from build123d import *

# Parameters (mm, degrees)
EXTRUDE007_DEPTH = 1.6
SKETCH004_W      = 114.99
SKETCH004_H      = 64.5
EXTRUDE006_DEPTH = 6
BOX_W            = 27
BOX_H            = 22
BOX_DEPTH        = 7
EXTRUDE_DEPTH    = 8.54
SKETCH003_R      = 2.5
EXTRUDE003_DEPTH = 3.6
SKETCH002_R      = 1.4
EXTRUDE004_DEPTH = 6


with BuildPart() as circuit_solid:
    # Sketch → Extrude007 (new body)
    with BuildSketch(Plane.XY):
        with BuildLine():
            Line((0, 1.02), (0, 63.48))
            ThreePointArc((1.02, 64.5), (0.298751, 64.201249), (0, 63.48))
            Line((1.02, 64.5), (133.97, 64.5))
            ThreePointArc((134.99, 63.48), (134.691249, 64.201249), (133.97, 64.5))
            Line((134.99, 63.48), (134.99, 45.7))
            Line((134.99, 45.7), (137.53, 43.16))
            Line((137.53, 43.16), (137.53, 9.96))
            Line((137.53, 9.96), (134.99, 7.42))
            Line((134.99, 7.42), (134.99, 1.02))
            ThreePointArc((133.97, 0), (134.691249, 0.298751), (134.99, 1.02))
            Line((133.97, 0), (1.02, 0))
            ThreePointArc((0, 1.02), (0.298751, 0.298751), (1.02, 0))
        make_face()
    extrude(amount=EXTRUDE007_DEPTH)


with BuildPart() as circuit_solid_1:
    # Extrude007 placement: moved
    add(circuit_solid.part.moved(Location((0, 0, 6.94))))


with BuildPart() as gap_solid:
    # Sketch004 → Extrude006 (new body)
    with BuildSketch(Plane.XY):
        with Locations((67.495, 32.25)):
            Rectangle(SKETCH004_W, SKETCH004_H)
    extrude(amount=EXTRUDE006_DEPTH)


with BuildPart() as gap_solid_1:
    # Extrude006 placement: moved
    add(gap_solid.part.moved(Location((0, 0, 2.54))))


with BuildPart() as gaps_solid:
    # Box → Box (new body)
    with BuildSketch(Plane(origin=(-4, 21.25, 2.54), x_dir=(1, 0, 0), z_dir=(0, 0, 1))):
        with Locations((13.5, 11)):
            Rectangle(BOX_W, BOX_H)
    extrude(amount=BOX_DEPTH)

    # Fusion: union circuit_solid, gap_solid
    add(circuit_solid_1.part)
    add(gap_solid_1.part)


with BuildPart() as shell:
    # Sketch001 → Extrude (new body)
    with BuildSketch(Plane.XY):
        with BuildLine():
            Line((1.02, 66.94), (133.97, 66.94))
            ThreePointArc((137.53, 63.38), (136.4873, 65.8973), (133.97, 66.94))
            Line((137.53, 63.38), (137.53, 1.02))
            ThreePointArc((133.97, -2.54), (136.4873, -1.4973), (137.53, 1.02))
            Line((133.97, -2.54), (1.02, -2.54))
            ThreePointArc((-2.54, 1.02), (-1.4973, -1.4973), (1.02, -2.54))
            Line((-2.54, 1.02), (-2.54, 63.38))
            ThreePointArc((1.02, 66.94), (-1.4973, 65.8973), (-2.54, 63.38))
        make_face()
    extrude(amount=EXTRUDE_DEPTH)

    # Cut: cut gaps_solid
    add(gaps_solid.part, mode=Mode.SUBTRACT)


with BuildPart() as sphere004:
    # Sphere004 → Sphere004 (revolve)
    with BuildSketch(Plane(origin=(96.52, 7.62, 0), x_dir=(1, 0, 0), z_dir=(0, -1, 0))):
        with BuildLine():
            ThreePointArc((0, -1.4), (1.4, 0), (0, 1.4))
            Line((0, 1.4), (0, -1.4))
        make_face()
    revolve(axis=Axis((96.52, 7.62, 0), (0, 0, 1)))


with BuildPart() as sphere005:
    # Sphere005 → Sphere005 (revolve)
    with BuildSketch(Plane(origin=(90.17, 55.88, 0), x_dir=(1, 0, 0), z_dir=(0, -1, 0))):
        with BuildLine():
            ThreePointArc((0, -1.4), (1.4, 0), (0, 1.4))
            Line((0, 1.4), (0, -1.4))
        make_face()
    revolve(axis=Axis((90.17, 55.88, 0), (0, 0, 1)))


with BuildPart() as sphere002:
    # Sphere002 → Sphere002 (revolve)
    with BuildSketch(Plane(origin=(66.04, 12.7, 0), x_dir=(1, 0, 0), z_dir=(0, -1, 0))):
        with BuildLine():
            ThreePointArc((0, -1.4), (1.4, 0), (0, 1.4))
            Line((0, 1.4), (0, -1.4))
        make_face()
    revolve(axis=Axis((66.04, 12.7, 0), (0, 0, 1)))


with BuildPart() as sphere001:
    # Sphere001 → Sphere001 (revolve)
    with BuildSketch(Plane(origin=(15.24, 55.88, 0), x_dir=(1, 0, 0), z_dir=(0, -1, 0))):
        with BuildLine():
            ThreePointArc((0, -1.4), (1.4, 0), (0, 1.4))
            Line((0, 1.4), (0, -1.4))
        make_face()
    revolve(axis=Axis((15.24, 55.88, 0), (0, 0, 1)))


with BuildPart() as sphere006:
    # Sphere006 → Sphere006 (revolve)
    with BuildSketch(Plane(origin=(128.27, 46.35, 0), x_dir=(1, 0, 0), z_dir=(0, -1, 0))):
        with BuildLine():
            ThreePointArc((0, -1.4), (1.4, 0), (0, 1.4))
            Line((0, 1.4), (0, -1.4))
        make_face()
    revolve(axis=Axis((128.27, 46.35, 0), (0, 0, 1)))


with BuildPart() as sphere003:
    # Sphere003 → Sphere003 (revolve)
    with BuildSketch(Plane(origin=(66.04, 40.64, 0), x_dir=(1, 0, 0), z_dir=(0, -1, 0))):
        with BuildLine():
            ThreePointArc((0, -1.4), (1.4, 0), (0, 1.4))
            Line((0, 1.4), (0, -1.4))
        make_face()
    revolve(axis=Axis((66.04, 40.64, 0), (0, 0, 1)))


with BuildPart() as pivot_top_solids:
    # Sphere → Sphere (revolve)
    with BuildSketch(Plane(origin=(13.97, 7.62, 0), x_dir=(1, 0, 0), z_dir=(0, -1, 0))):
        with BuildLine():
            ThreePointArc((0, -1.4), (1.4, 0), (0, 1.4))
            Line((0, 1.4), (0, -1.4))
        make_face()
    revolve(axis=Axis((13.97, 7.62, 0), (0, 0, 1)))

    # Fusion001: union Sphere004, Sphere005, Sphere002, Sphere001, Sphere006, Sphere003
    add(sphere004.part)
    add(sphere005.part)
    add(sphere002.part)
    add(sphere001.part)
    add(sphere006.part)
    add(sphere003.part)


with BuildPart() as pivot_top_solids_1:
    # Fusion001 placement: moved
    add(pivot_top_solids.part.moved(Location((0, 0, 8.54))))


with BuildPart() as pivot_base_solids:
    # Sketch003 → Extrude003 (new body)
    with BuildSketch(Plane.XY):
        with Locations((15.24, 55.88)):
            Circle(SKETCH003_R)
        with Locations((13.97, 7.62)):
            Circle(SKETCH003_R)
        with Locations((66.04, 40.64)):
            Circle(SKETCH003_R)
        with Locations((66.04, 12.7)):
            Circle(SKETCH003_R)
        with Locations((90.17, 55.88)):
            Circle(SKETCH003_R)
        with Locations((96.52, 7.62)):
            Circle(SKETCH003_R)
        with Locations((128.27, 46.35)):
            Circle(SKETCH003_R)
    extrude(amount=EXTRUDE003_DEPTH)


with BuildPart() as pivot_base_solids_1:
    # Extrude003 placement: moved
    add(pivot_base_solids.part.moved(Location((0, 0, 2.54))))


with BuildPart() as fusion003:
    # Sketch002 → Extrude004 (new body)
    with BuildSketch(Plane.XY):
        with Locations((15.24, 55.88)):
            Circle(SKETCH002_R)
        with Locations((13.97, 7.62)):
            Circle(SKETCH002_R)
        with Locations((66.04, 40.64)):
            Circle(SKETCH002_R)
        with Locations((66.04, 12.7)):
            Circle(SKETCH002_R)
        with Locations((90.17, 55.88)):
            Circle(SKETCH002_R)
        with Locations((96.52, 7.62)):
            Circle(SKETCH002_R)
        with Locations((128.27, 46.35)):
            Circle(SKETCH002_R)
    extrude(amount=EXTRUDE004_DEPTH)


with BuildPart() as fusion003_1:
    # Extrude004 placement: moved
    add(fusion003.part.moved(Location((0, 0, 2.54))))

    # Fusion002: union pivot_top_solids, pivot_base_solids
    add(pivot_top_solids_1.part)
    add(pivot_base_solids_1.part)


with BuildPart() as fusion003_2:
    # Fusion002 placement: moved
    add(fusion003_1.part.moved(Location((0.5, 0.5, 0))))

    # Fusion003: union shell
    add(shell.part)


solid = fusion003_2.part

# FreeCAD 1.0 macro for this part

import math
import FreeCAD as App
import Part
import Sketcher
from FreeCAD import Vector

doc = App.newDocument("Part")
params = doc.addObject("Spreadsheet::Sheet", "Params")
for row, (alias, value) in enumerate([
    ("sketch1_radius", "1.02 mm"),
    ("sketch1_height", "6.4 mm"),
    ("sketch1_height2", "33.2 mm"),
    ("sketch1_width", "132.95 mm"),
    ("sketch1_height3", "62.46 mm"),
    ("pad1_length", "1.6 mm"),
    ("sketch2_height", "64.5 mm"),
    ("sketch2_width", "114.99 mm"),
    ("pad2_length", "6 mm"),
    ("sketch3_width", "27 mm"),
    ("sketch3_height", "22 mm"),
    ("pad3_length", "7 mm"),
    ("sketch4_radius", "3.56 mm"),
    ("sketch4_width", "132.95 mm"),
    ("sketch4_height", "62.36 mm"),
    ("pad4_length", "8.54 mm"),
    ("sketch5_radius", "1.4 mm"),
    ("revolution_angle", "360 deg"),
    ("sketch6_radius", "1.4 mm"),
    ("revolution2_angle", "360 deg"),
    ("sketch7_radius", "1.4 mm"),
    ("revolution3_angle", "360 deg"),
    ("sketch8_radius", "1.4 mm"),
    ("revolution4_angle", "360 deg"),
    ("sketch9_radius", "1.4 mm"),
    ("revolution5_angle", "360 deg"),
    ("sketch10_radius", "1.4 mm"),
    ("revolution6_angle", "360 deg"),
    ("sketch11_radius", "1.4 mm"),
    ("revolution7_angle", "360 deg"),
    ("sketch12_diameter", "5 mm"),
    ("pad5_length", "3.6 mm"),
    ("sketch13_diameter", "2.8 mm"),
    ("pad6_length", "6 mm"),
], start=1):
    params.set(f"A{row}", alias)
    params.set(f"B{row}", "=" + value)
    params.setAlias(f"B{row}", alias)

body = doc.addObject("PartDesign::Body", "Body")

# Sketch on XY plane
sketch1 = doc.addObject("Sketcher::SketchObject", "Sketch")
body.addObject(sketch1)
sketch1.AttachmentSupport = (doc.XY_Plane, [""])
sketch1.MapMode = "FlatFace"
sketch1.addGeometry([
    Part.LineSegment(Vector(0, 63.48, 0), Vector(0, 1.02, 0)),  # 0
    Part.ArcOfCircle(Part.Circle(Vector(1.02, 1.02, 0), Vector(0, 0, 1), 1.02), math.radians(179.999984), math.radians(270.000016)),  # 1
    Part.LineSegment(Vector(1.02, 0, 0), Vector(133.97, 0, 0)),  # 2
    Part.ArcOfCircle(Part.Circle(Vector(133.97, 1.02, 0), Vector(0, 0, 1), 1.02), math.radians(-90.000016), math.radians(0.000016)),  # 3
    Part.LineSegment(Vector(134.99, 1.02, 0), Vector(134.99, 7.42, 0)),  # 4
    Part.LineSegment(Vector(134.99, 7.42, 0), Vector(137.53, 9.96, 0)),  # 5
    Part.LineSegment(Vector(137.53, 9.96, 0), Vector(137.53, 43.16, 0)),  # 6
    Part.LineSegment(Vector(137.53, 43.16, 0), Vector(134.99, 45.7, 0)),  # 7
    Part.LineSegment(Vector(134.99, 45.7, 0), Vector(134.99, 63.48, 0)),  # 8
    Part.ArcOfCircle(Part.Circle(Vector(133.97, 63.48, 0), Vector(0, 0, 1), 1.02), math.radians(-0.000016), math.radians(90.000016)),  # 9
    Part.LineSegment(Vector(133.97, 64.5, 0), Vector(1.02, 64.5, 0)),  # 10
    Part.ArcOfCircle(Part.Circle(Vector(1.02, 63.48, 0), Vector(0, 0, 1), 1.02), math.radians(89.999984), math.radians(180.000016)),  # 11
], False)
sketch1.addConstraint([
    Sketcher.Constraint("Tangent", 0, 2, 1, 1),
    Sketcher.Constraint("Tangent", 1, 2, 2, 1),
    Sketcher.Constraint("Tangent", 2, 2, 3, 1),
    Sketcher.Constraint("Tangent", 3, 2, 4, 1),
    Sketcher.Constraint("Coincident", 4, 2, 5, 1),
    Sketcher.Constraint("Coincident", 5, 2, 6, 1),
    Sketcher.Constraint("Coincident", 6, 2, 7, 1),
    Sketcher.Constraint("Coincident", 7, 2, 8, 1),
    Sketcher.Constraint("Tangent", 8, 2, 9, 1),
    Sketcher.Constraint("Tangent", 9, 2, 10, 1),
    Sketcher.Constraint("Tangent", 10, 2, 11, 1),
    Sketcher.Constraint("Tangent", 11, 2, 0, 1),
    Sketcher.Constraint("Vertical", 0),
    Sketcher.Constraint("Horizontal", 2),
    Sketcher.Constraint("Vertical", 4),
    Sketcher.Constraint("Vertical", 6),
    Sketcher.Constraint("Vertical", 8),
    Sketcher.Constraint("Horizontal", 10),
    Sketcher.Constraint("Equal", 1, 3),
    Sketcher.Constraint("Equal", 3, 9),
    Sketcher.Constraint("Equal", 9, 11),
    Sketcher.Constraint("PointOnObject", 0, 2, -2),
    Sketcher.Constraint("PointOnObject", 1, 2, -1),
    Sketcher.Constraint("Perpendicular", 5, 7),
    Sketcher.Constraint("Vertical", 3, 3, 9, 3),
    Sketcher.Constraint("Equal", 5, 7),
    Sketcher.Constraint("Radius", 1, 1.02),
    Sketcher.Constraint("DistanceY", 4, 1, 4, 2, 6.4),
    Sketcher.Constraint("DistanceY", 6, 1, 6, 2, 33.2),
    Sketcher.Constraint("DistanceX", 2, 1, 2, 2, 132.95),
    Sketcher.Constraint("DistanceY", 0, 2, 0, 1, 62.46),
    Sketcher.Constraint("DistanceY", 8, 1, 8, 2, 17.78),
])
sketch1.setExpression("Constraints[26]", "Params.sketch1_radius")
sketch1.setExpression("Constraints[27]", "Params.sketch1_height")
sketch1.setExpression("Constraints[28]", "Params.sketch1_height2")
sketch1.setExpression("Constraints[29]", "Params.sketch1_width")
sketch1.setExpression("Constraints[30]", "Params.sketch1_height3")
pad1 = doc.addObject("PartDesign::Pad", "Pad")
body.addObject(pad1)
pad1.Profile = sketch1
pad1.setExpression("Length", "Params.pad1_length")
body2 = doc.addObject("PartDesign::Body", "Body001")
doc.recompute()

body.Placement = App.Placement(Vector(0, 0, 6.94), App.Rotation(Vector(0, 0, 1), 0))
boolean = doc.addObject("PartDesign::Boolean", "Boolean")
body2.addObject(boolean)
boolean.Type = "Fuse"
boolean.addObjects([body])
body3 = doc.addObject("PartDesign::Body", "Body002")

# Sketch on XY plane
sketch2 = doc.addObject("Sketcher::SketchObject", "Sketch001")
body3.addObject(sketch2)
sketch2.AttachmentSupport = (doc.getObject("XY_Plane002"), [""])
sketch2.MapMode = "FlatFace"
sketch2.addGeometry([
    Part.LineSegment(Vector(10, 64.5, 0), Vector(10, 0, 0)),
    Part.LineSegment(Vector(10, 0, 0), Vector(124.99, 0, 0)),
    Part.LineSegment(Vector(124.99, 0, 0), Vector(124.99, 64.5, 0)),
    Part.LineSegment(Vector(124.99, 64.5, 0), Vector(10, 64.5, 0)),
], False)
sketch2.addConstraint([
    Sketcher.Constraint("Coincident", 0, 2, 1, 1),
    Sketcher.Constraint("Coincident", 1, 2, 2, 1),
    Sketcher.Constraint("Coincident", 2, 2, 3, 1),
    Sketcher.Constraint("Coincident", 3, 2, 0, 1),
    Sketcher.Constraint("Vertical", 0),
    Sketcher.Constraint("Horizontal", 1),
    Sketcher.Constraint("Vertical", 2),
    Sketcher.Constraint("Horizontal", 3),
    Sketcher.Constraint("PointOnObject", 0, 2, -1),
    Sketcher.Constraint("DistanceY", 0, 2, 0, 1, 64.5),
    Sketcher.Constraint("DistanceX", -1, 1, 0, 2, 10.0),
    Sketcher.Constraint("DistanceX", 1, 1, 1, 2, 114.99),
])
sketch2.setExpression("Constraints[9]", "Params.sketch2_height")
sketch2.setExpression("Constraints[11]", "Params.sketch2_width")
pad2 = doc.addObject("PartDesign::Pad", "Pad001")
body3.addObject(pad2)
pad2.Profile = sketch2
pad2.setExpression("Length", "Params.pad2_length")
body4 = doc.addObject("PartDesign::Body", "Body003")
doc.recompute()

body3.Placement = App.Placement(Vector(0, 0, 2.54), App.Rotation(Vector(0, 0, 1), 0))
boolean2 = doc.addObject("PartDesign::Boolean", "Boolean001")
body4.addObject(boolean2)
boolean2.Type = "Fuse"
boolean2.addObjects([body3])
body5 = doc.addObject("PartDesign::Body", "Body004")

# Sketch on XY plane
sketch3 = doc.addObject("Sketcher::SketchObject", "Sketch002")
body5.addObject(sketch3)
sketch3.AttachmentSupport = (doc.getObject("XY_Plane004"), [""])
sketch3.MapMode = "FlatFace"
sketch3.AttachmentOffset = App.Placement(Vector(0, 0, 2.54), App.Rotation())
sketch3.addGeometry([
    Part.LineSegment(Vector(-4, 43.25, 0), Vector(-4, 21.25, 0)),
    Part.LineSegment(Vector(-4, 21.25, 0), Vector(23, 21.25, 0)),
    Part.LineSegment(Vector(23, 21.25, 0), Vector(23, 43.25, 0)),
    Part.LineSegment(Vector(23, 43.25, 0), Vector(-4, 43.25, 0)),
], False)
sketch3.addConstraint([
    Sketcher.Constraint("Coincident", 0, 2, 1, 1),
    Sketcher.Constraint("Coincident", 1, 2, 2, 1),
    Sketcher.Constraint("Coincident", 2, 2, 3, 1),
    Sketcher.Constraint("Coincident", 3, 2, 0, 1),
    Sketcher.Constraint("Vertical", 0),
    Sketcher.Constraint("Horizontal", 1),
    Sketcher.Constraint("Vertical", 2),
    Sketcher.Constraint("Horizontal", 3),
    Sketcher.Constraint("DistanceX", 1, 1, 1, 2, 27.0),
    Sketcher.Constraint("DistanceY", 0, 2, 0, 1, 22.0),
    Sketcher.Constraint("DistanceX", 0, 2, -1, 1, 4.0),
    Sketcher.Constraint("DistanceY", -1, 1, 0, 2, 21.25),
])
sketch3.setExpression("Constraints[8]", "Params.sketch3_width")
sketch3.setExpression("Constraints[9]", "Params.sketch3_height")
pad3 = doc.addObject("PartDesign::Pad", "Pad002")
body5.addObject(pad3)
pad3.Profile = sketch3
pad3.setExpression("Length", "Params.pad3_length")
doc.recompute()

boolean3 = doc.addObject("PartDesign::Boolean", "Boolean002")
body5.addObject(boolean3)
boolean3.Type = "Fuse"
boolean3.addObjects([body2])
doc.recompute()

boolean4 = doc.addObject("PartDesign::Boolean", "Boolean003")
body5.addObject(boolean4)
boolean4.Type = "Fuse"
boolean4.addObjects([body4])
body6 = doc.addObject("PartDesign::Body", "Body005")

# Sketch on XY plane
sketch4 = doc.addObject("Sketcher::SketchObject", "Sketch003")
body6.addObject(sketch4)
sketch4.AttachmentSupport = (doc.getObject("XY_Plane005"), [""])
sketch4.MapMode = "FlatFace"
sketch4.addGeometry([
    Part.LineSegment(Vector(133.97, 66.94, 0), Vector(1.02, 66.94, 0)),  # 0
    Part.ArcOfCircle(Part.Circle(Vector(1.02, 63.38, 0), Vector(0, 0, 1), 3.56), math.radians(90.000008), math.radians(179.999992)),  # 1
    Part.LineSegment(Vector(-2.54, 63.38, 0), Vector(-2.54, 1.02, 0)),  # 2
    Part.ArcOfCircle(Part.Circle(Vector(1.02, 1.02, 0), Vector(0, 0, 1), 3.56), math.radians(-179.999992), math.radians(-90.000008)),  # 3
    Part.LineSegment(Vector(1.02, -2.54, 0), Vector(133.97, -2.54, 0)),  # 4
    Part.ArcOfCircle(Part.Circle(Vector(133.97, 1.02, 0), Vector(0, 0, 1), 3.56), math.radians(-89.999992), math.radians(-0.000008)),  # 5
    Part.LineSegment(Vector(137.53, 1.02, 0), Vector(137.53, 63.38, 0)),  # 6
    Part.ArcOfCircle(Part.Circle(Vector(133.97, 63.38, 0), Vector(0, 0, 1), 3.56), math.radians(0.000008), math.radians(89.999992)),  # 7
], False)
sketch4.addConstraint([
    Sketcher.Constraint("Tangent", 0, 2, 1, 1),
    Sketcher.Constraint("Tangent", 1, 2, 2, 1),
    Sketcher.Constraint("Tangent", 2, 2, 3, 1),
    Sketcher.Constraint("Tangent", 3, 2, 4, 1),
    Sketcher.Constraint("Tangent", 4, 2, 5, 1),
    Sketcher.Constraint("Tangent", 5, 2, 6, 1),
    Sketcher.Constraint("Tangent", 6, 2, 7, 1),
    Sketcher.Constraint("Tangent", 7, 2, 0, 1),
    Sketcher.Constraint("Horizontal", 0),
    Sketcher.Constraint("Vertical", 2),
    Sketcher.Constraint("Horizontal", 4),
    Sketcher.Constraint("Vertical", 6),
    Sketcher.Constraint("Equal", 1, 3),
    Sketcher.Constraint("Equal", 3, 5),
    Sketcher.Constraint("Equal", 5, 7),
    Sketcher.Constraint("Radius", 1, 3.56),
    Sketcher.Constraint("DistanceX", 0, 2, 0, 1, 132.95),
    Sketcher.Constraint("DistanceY", 2, 2, 2, 1, 62.36),
    Sketcher.Constraint("DistanceX", -1, 1, 1, 3, 1.02),
    Sketcher.Constraint("DistanceY", -1, 1, 1, 3, 63.38),
])
sketch4.setExpression("Constraints[15]", "Params.sketch4_radius")
sketch4.setExpression("Constraints[16]", "Params.sketch4_width")
sketch4.setExpression("Constraints[17]", "Params.sketch4_height")
pad4 = doc.addObject("PartDesign::Pad", "Pad003")
body6.addObject(pad4)
pad4.Profile = sketch4
pad4.setExpression("Length", "Params.pad4_length")
doc.recompute()

boolean5 = doc.addObject("PartDesign::Boolean", "Boolean004")
body6.addObject(boolean5)
boolean5.Type = "Cut"
boolean5.addObjects([body5])
body7 = doc.addObject("PartDesign::Body", "Body006")

# Sketch on XZ plane
sketch5 = doc.addObject("Sketcher::SketchObject", "Sketch004")
body7.addObject(sketch5)
sketch5.AttachmentSupport = (doc.getObject("XZ_Plane006"), [""])
sketch5.MapMode = "FlatFace"
sketch5.AttachmentOffset = App.Placement(Vector(0, 0, -7.62), App.Rotation())
sketch5.addGeometry([
    Part.ArcOfCircle(Part.Circle(Vector(96.52, 0, 0), Vector(0, 0, 1), 1.4), math.radians(-90), math.radians(90)),
    Part.LineSegment(Vector(96.52, 1.4, 0), Vector(96.52, -1.4, 0)),
], False)
sketch5.addGeometry(Part.LineSegment(Vector(96.52, -1.4, 0), Vector(96.52, 1.4, 0)), True)  # axis
sketch5.addConstraint([
    Sketcher.Constraint("Coincident", 0, 1, 1, 2),
    Sketcher.Constraint("Coincident", 1, 1, 0, 2),
    Sketcher.Constraint("Vertical", 1),
    Sketcher.Constraint("Vertical", 2),
    Sketcher.Constraint("Coincident", 2, 1, 0, 1),
    Sketcher.Constraint("PointOnObject", 0, 3, -1),
    Sketcher.Constraint("Equal", 1, 2),
    Sketcher.Constraint("Radius", 0, 1.4),
    Sketcher.Constraint("DistanceX", -1, 1, 0, 3, 96.52),
    Sketcher.Constraint("DistanceX", -1, 1, 0, 1, 96.52),
])
sketch5.setExpression("Constraints[7]", "Params.sketch5_radius")
revolution = doc.addObject("PartDesign::Revolution", "Revolution")
body7.addObject(revolution)
revolution.Profile = sketch5
revolution.ReferenceAxis = (sketch5, ["Axis0"])
revolution.setExpression("Angle", "Params.revolution_angle")
body8 = doc.addObject("PartDesign::Body", "Body007")

# Sketch on XZ plane
sketch6 = doc.addObject("Sketcher::SketchObject", "Sketch005")
body8.addObject(sketch6)
sketch6.AttachmentSupport = (doc.getObject("XZ_Plane007"), [""])
sketch6.MapMode = "FlatFace"
sketch6.AttachmentOffset = App.Placement(Vector(0, 0, -55.88), App.Rotation())
sketch6.addGeometry([
    Part.ArcOfCircle(Part.Circle(Vector(90.17, 0, 0), Vector(0, 0, 1), 1.4), math.radians(-90), math.radians(90)),
    Part.LineSegment(Vector(90.17, 1.4, 0), Vector(90.17, -1.4, 0)),
], False)
sketch6.addGeometry(Part.LineSegment(Vector(90.17, -1.4, 0), Vector(90.17, 1.4, 0)), True)  # axis
sketch6.addConstraint([
    Sketcher.Constraint("Coincident", 0, 1, 1, 2),
    Sketcher.Constraint("Coincident", 1, 1, 0, 2),
    Sketcher.Constraint("Vertical", 1),
    Sketcher.Constraint("Vertical", 2),
    Sketcher.Constraint("Coincident", 2, 1, 0, 1),
    Sketcher.Constraint("PointOnObject", 0, 3, -1),
    Sketcher.Constraint("Equal", 1, 2),
    Sketcher.Constraint("Radius", 0, 1.4),
    Sketcher.Constraint("DistanceX", -1, 1, 0, 3, 90.17),
    Sketcher.Constraint("DistanceX", -1, 1, 0, 1, 90.17),
])
sketch6.setExpression("Constraints[7]", "Params.sketch6_radius")
revolution2 = doc.addObject("PartDesign::Revolution", "Revolution001")
body8.addObject(revolution2)
revolution2.Profile = sketch6
revolution2.ReferenceAxis = (sketch6, ["Axis0"])
revolution2.setExpression("Angle", "Params.revolution2_angle")
body9 = doc.addObject("PartDesign::Body", "Body008")

# Sketch on XZ plane
sketch7 = doc.addObject("Sketcher::SketchObject", "Sketch006")
body9.addObject(sketch7)
sketch7.AttachmentSupport = (doc.getObject("XZ_Plane008"), [""])
sketch7.MapMode = "FlatFace"
sketch7.AttachmentOffset = App.Placement(Vector(0, 0, -12.7), App.Rotation())
sketch7.addGeometry([
    Part.ArcOfCircle(Part.Circle(Vector(66.04, 0, 0), Vector(0, 0, 1), 1.4), math.radians(-90), math.radians(90)),
    Part.LineSegment(Vector(66.04, 1.4, 0), Vector(66.04, -1.4, 0)),
], False)
sketch7.addGeometry(Part.LineSegment(Vector(66.04, -1.4, 0), Vector(66.04, 1.4, 0)), True)  # axis
sketch7.addConstraint([
    Sketcher.Constraint("Coincident", 0, 1, 1, 2),
    Sketcher.Constraint("Coincident", 1, 1, 0, 2),
    Sketcher.Constraint("Vertical", 1),
    Sketcher.Constraint("Vertical", 2),
    Sketcher.Constraint("Coincident", 2, 1, 0, 1),
    Sketcher.Constraint("PointOnObject", 0, 3, -1),
    Sketcher.Constraint("Equal", 1, 2),
    Sketcher.Constraint("Radius", 0, 1.4),
    Sketcher.Constraint("DistanceX", -1, 1, 0, 3, 66.04),
    Sketcher.Constraint("DistanceX", -1, 1, 0, 1, 66.04),
])
sketch7.setExpression("Constraints[7]", "Params.sketch7_radius")
revolution3 = doc.addObject("PartDesign::Revolution", "Revolution002")
body9.addObject(revolution3)
revolution3.Profile = sketch7
revolution3.ReferenceAxis = (sketch7, ["Axis0"])
revolution3.setExpression("Angle", "Params.revolution3_angle")
body10 = doc.addObject("PartDesign::Body", "Body009")

# Sketch on XZ plane
sketch8 = doc.addObject("Sketcher::SketchObject", "Sketch007")
body10.addObject(sketch8)
sketch8.AttachmentSupport = (doc.getObject("XZ_Plane009"), [""])
sketch8.MapMode = "FlatFace"
sketch8.AttachmentOffset = App.Placement(Vector(0, 0, -55.88), App.Rotation())
sketch8.addGeometry([
    Part.ArcOfCircle(Part.Circle(Vector(15.24, 0, 0), Vector(0, 0, 1), 1.4), math.radians(-90), math.radians(90)),
    Part.LineSegment(Vector(15.24, 1.4, 0), Vector(15.24, -1.4, 0)),
], False)
sketch8.addGeometry(Part.LineSegment(Vector(15.24, -1.4, 0), Vector(15.24, 1.4, 0)), True)  # axis
sketch8.addConstraint([
    Sketcher.Constraint("Coincident", 0, 1, 1, 2),
    Sketcher.Constraint("Coincident", 1, 1, 0, 2),
    Sketcher.Constraint("Vertical", 1),
    Sketcher.Constraint("Vertical", 2),
    Sketcher.Constraint("Coincident", 2, 1, 0, 1),
    Sketcher.Constraint("PointOnObject", 0, 3, -1),
    Sketcher.Constraint("Equal", 1, 2),
    Sketcher.Constraint("Radius", 0, 1.4),
    Sketcher.Constraint("DistanceX", -1, 1, 0, 3, 15.24),
    Sketcher.Constraint("DistanceX", -1, 1, 0, 1, 15.24),
])
sketch8.setExpression("Constraints[7]", "Params.sketch8_radius")
revolution4 = doc.addObject("PartDesign::Revolution", "Revolution003")
body10.addObject(revolution4)
revolution4.Profile = sketch8
revolution4.ReferenceAxis = (sketch8, ["Axis0"])
revolution4.setExpression("Angle", "Params.revolution4_angle")
body11 = doc.addObject("PartDesign::Body", "Body010")

# Sketch on XZ plane
sketch9 = doc.addObject("Sketcher::SketchObject", "Sketch008")
body11.addObject(sketch9)
sketch9.AttachmentSupport = (doc.getObject("XZ_Plane010"), [""])
sketch9.MapMode = "FlatFace"
sketch9.AttachmentOffset = App.Placement(Vector(0, 0, -46.35), App.Rotation())
sketch9.addGeometry([
    Part.ArcOfCircle(Part.Circle(Vector(128.27, 0, 0), Vector(0, 0, 1), 1.4), math.radians(-90), math.radians(90)),
    Part.LineSegment(Vector(128.27, 1.4, 0), Vector(128.27, -1.4, 0)),
], False)
sketch9.addGeometry(Part.LineSegment(Vector(128.27, -1.4, 0), Vector(128.27, 1.4, 0)), True)  # axis
sketch9.addConstraint([
    Sketcher.Constraint("Coincident", 0, 1, 1, 2),
    Sketcher.Constraint("Coincident", 1, 1, 0, 2),
    Sketcher.Constraint("Vertical", 1),
    Sketcher.Constraint("Vertical", 2),
    Sketcher.Constraint("Coincident", 2, 1, 0, 1),
    Sketcher.Constraint("PointOnObject", 0, 3, -1),
    Sketcher.Constraint("Equal", 1, 2),
    Sketcher.Constraint("Radius", 0, 1.4),
    Sketcher.Constraint("DistanceX", -1, 1, 0, 3, 128.27),
    Sketcher.Constraint("DistanceX", -1, 1, 0, 1, 128.27),
])
sketch9.setExpression("Constraints[7]", "Params.sketch9_radius")
revolution5 = doc.addObject("PartDesign::Revolution", "Revolution004")
body11.addObject(revolution5)
revolution5.Profile = sketch9
revolution5.ReferenceAxis = (sketch9, ["Axis0"])
revolution5.setExpression("Angle", "Params.revolution5_angle")
body12 = doc.addObject("PartDesign::Body", "Body011")

# Sketch on XZ plane
sketch10 = doc.addObject("Sketcher::SketchObject", "Sketch009")
body12.addObject(sketch10)
sketch10.AttachmentSupport = (doc.getObject("XZ_Plane011"), [""])
sketch10.MapMode = "FlatFace"
sketch10.AttachmentOffset = App.Placement(Vector(0, 0, -40.64), App.Rotation())
sketch10.addGeometry([
    Part.ArcOfCircle(Part.Circle(Vector(66.04, 0, 0), Vector(0, 0, 1), 1.4), math.radians(-90), math.radians(90)),
    Part.LineSegment(Vector(66.04, 1.4, 0), Vector(66.04, -1.4, 0)),
], False)
sketch10.addGeometry(Part.LineSegment(Vector(66.04, -1.4, 0), Vector(66.04, 1.4, 0)), True)  # axis
sketch10.addConstraint([
    Sketcher.Constraint("Coincident", 0, 1, 1, 2),
    Sketcher.Constraint("Coincident", 1, 1, 0, 2),
    Sketcher.Constraint("Vertical", 1),
    Sketcher.Constraint("Vertical", 2),
    Sketcher.Constraint("Coincident", 2, 1, 0, 1),
    Sketcher.Constraint("PointOnObject", 0, 3, -1),
    Sketcher.Constraint("Equal", 1, 2),
    Sketcher.Constraint("Radius", 0, 1.4),
    Sketcher.Constraint("DistanceX", -1, 1, 0, 3, 66.04),
    Sketcher.Constraint("DistanceX", -1, 1, 0, 1, 66.04),
])
sketch10.setExpression("Constraints[7]", "Params.sketch10_radius")
revolution6 = doc.addObject("PartDesign::Revolution", "Revolution005")
body12.addObject(revolution6)
revolution6.Profile = sketch10
revolution6.ReferenceAxis = (sketch10, ["Axis0"])
revolution6.setExpression("Angle", "Params.revolution6_angle")
body13 = doc.addObject("PartDesign::Body", "Body012")
body13.AllowCompound = True

# Sketch on XZ plane
sketch11 = doc.addObject("Sketcher::SketchObject", "Sketch010")
body13.addObject(sketch11)
sketch11.AttachmentSupport = (doc.getObject("XZ_Plane012"), [""])
sketch11.MapMode = "FlatFace"
sketch11.AttachmentOffset = App.Placement(Vector(0, 0, -7.62), App.Rotation())
sketch11.addGeometry([
    Part.ArcOfCircle(Part.Circle(Vector(13.97, 0, 0), Vector(0, 0, 1), 1.4), math.radians(-90), math.radians(90)),
    Part.LineSegment(Vector(13.97, 1.4, 0), Vector(13.97, -1.4, 0)),
], False)
sketch11.addGeometry(Part.LineSegment(Vector(13.97, -1.4, 0), Vector(13.97, 1.4, 0)), True)  # axis
sketch11.addConstraint([
    Sketcher.Constraint("Coincident", 0, 1, 1, 2),
    Sketcher.Constraint("Coincident", 1, 1, 0, 2),
    Sketcher.Constraint("Vertical", 1),
    Sketcher.Constraint("Vertical", 2),
    Sketcher.Constraint("Coincident", 2, 1, 0, 1),
    Sketcher.Constraint("PointOnObject", 0, 3, -1),
    Sketcher.Constraint("Equal", 1, 2),
    Sketcher.Constraint("Radius", 0, 1.4),
    Sketcher.Constraint("DistanceX", -1, 1, 0, 3, 13.97),
    Sketcher.Constraint("DistanceX", -1, 1, 0, 1, 13.97),
])
sketch11.setExpression("Constraints[7]", "Params.sketch11_radius")
revolution7 = doc.addObject("PartDesign::Revolution", "Revolution006")
body13.addObject(revolution7)
revolution7.Profile = sketch11
revolution7.ReferenceAxis = (sketch11, ["Axis0"])
revolution7.setExpression("Angle", "Params.revolution7_angle")
doc.recompute()

boolean6 = doc.addObject("PartDesign::Boolean", "Boolean005")
body13.addObject(boolean6)
boolean6.Type = "Fuse"
boolean6.addObjects([body7])
doc.recompute()

boolean7 = doc.addObject("PartDesign::Boolean", "Boolean006")
body13.addObject(boolean7)
boolean7.Type = "Fuse"
boolean7.addObjects([body8])
doc.recompute()

boolean8 = doc.addObject("PartDesign::Boolean", "Boolean007")
body13.addObject(boolean8)
boolean8.Type = "Fuse"
boolean8.addObjects([body9])
doc.recompute()

boolean9 = doc.addObject("PartDesign::Boolean", "Boolean008")
body13.addObject(boolean9)
boolean9.Type = "Fuse"
boolean9.addObjects([body10])
doc.recompute()

boolean10 = doc.addObject("PartDesign::Boolean", "Boolean009")
body13.addObject(boolean10)
boolean10.Type = "Fuse"
boolean10.addObjects([body11])
doc.recompute()

boolean11 = doc.addObject("PartDesign::Boolean", "Boolean010")
body13.addObject(boolean11)
boolean11.Type = "Fuse"
boolean11.addObjects([body12])
body14 = doc.addObject("PartDesign::Body", "Body013")
body14.AllowCompound = True
doc.recompute()

body13.Placement = App.Placement(Vector(0, 0, 8.54), App.Rotation(Vector(0, 0, 1), 0))
boolean12 = doc.addObject("PartDesign::Boolean", "Boolean011")
body14.addObject(boolean12)
boolean12.Type = "Fuse"
boolean12.addObjects([body13])
body15 = doc.addObject("PartDesign::Body", "Body014")
body15.AllowCompound = True

# Sketch on XY plane
sketch12 = doc.addObject("Sketcher::SketchObject", "Sketch011")
body15.addObject(sketch12)
sketch12.AttachmentSupport = (doc.getObject("XY_Plane014"), [""])
sketch12.MapMode = "FlatFace"
sketch12.addGeometry([
    Part.Circle(Vector(15.24, 55.88, 0), Vector(0, 0, 1), 2.5),  # 0
    Part.Circle(Vector(13.97, 7.62, 0), Vector(0, 0, 1), 2.5),  # 1
    Part.Circle(Vector(66.04, 40.64, 0), Vector(0, 0, 1), 2.5),  # 2
    Part.Circle(Vector(66.04, 12.7, 0), Vector(0, 0, 1), 2.5),  # 3
    Part.Circle(Vector(90.17, 55.88, 0), Vector(0, 0, 1), 2.5),  # 4
    Part.Circle(Vector(96.52, 7.62, 0), Vector(0, 0, 1), 2.5),  # 5
    Part.Circle(Vector(128.27, 46.35, 0), Vector(0, 0, 1), 2.5),  # 6
], False)
sketch12.addConstraint([
    Sketcher.Constraint("Equal", 0, 1),
    Sketcher.Constraint("Equal", 1, 2),
    Sketcher.Constraint("Equal", 2, 3),
    Sketcher.Constraint("Equal", 3, 4),
    Sketcher.Constraint("Equal", 4, 5),
    Sketcher.Constraint("Equal", 5, 6),
    Sketcher.Constraint("Horizontal", 0, 3, 4, 3),
    Sketcher.Constraint("Horizontal", 1, 3, 5, 3),
    Sketcher.Constraint("Vertical", 2, 3, 3, 3),
    Sketcher.Constraint("Diameter", 0, 5.0),
    Sketcher.Constraint("DistanceY", -1, 1, 3, 3, 12.7),
    Sketcher.Constraint("DistanceX", 0, 3, 2, 3, 50.8),
    Sketcher.Constraint("DistanceX", 1, 3, 4, 3, 76.2),
    Sketcher.Constraint("DistanceX", 4, 3, 6, 3, 38.1),
    Sketcher.Constraint("DistanceX", -1, 1, 0, 3, 15.24),
    Sketcher.Constraint("DistanceY", -1, 1, 0, 3, 55.88),
    Sketcher.Constraint("DistanceX", -1, 1, 1, 3, 13.97),
    Sketcher.Constraint("DistanceY", -1, 1, 1, 3, 7.62),
    Sketcher.Constraint("DistanceY", -1, 1, 2, 3, 40.64),
    Sketcher.Constraint("DistanceX", -1, 1, 5, 3, 96.52),
    Sketcher.Constraint("DistanceY", -1, 1, 6, 3, 46.35),
])
sketch12.setExpression("Constraints[9]", "Params.sketch12_diameter")
pad5 = doc.addObject("PartDesign::Pad", "Pad004")
body15.addObject(pad5)
pad5.Profile = sketch12
pad5.setExpression("Length", "Params.pad5_length")
body16 = doc.addObject("PartDesign::Body", "Body015")
body16.AllowCompound = True
doc.recompute()

body15.Placement = App.Placement(Vector(0, 0, 2.54), App.Rotation(Vector(0, 0, 1), 0))
boolean13 = doc.addObject("PartDesign::Boolean", "Boolean012")
body16.addObject(boolean13)
boolean13.Type = "Fuse"
boolean13.addObjects([body15])
body17 = doc.addObject("PartDesign::Body", "Body016")
body17.AllowCompound = True

# Sketch on XY plane
sketch13 = doc.addObject("Sketcher::SketchObject", "Sketch012")
body17.addObject(sketch13)
sketch13.AttachmentSupport = (doc.getObject("XY_Plane016"), [""])
sketch13.MapMode = "FlatFace"
sketch13.addGeometry([
    Part.Circle(Vector(15.24, 55.88, 0), Vector(0, 0, 1), 1.4),  # 0
    Part.Circle(Vector(13.97, 7.62, 0), Vector(0, 0, 1), 1.4),  # 1
    Part.Circle(Vector(66.04, 40.64, 0), Vector(0, 0, 1), 1.4),  # 2
    Part.Circle(Vector(66.04, 12.7, 0), Vector(0, 0, 1), 1.4),  # 3
    Part.Circle(Vector(90.17, 55.88, 0), Vector(0, 0, 1), 1.4),  # 4
    Part.Circle(Vector(96.52, 7.62, 0), Vector(0, 0, 1), 1.4),  # 5
    Part.Circle(Vector(128.27, 46.35, 0), Vector(0, 0, 1), 1.4),  # 6
], False)
sketch13.addConstraint([
    Sketcher.Constraint("Equal", 0, 1),
    Sketcher.Constraint("Equal", 1, 2),
    Sketcher.Constraint("Equal", 2, 3),
    Sketcher.Constraint("Equal", 3, 4),
    Sketcher.Constraint("Equal", 4, 5),
    Sketcher.Constraint("Equal", 5, 6),
    Sketcher.Constraint("Horizontal", 0, 3, 4, 3),
    Sketcher.Constraint("Horizontal", 1, 3, 5, 3),
    Sketcher.Constraint("Vertical", 2, 3, 3, 3),
    Sketcher.Constraint("Diameter", 0, 2.8),
    Sketcher.Constraint("DistanceY", -1, 1, 3, 3, 12.7),
    Sketcher.Constraint("DistanceX", 0, 3, 2, 3, 50.8),
    Sketcher.Constraint("DistanceX", 1, 3, 4, 3, 76.2),
    Sketcher.Constraint("DistanceX", 4, 3, 6, 3, 38.1),
    Sketcher.Constraint("DistanceX", -1, 1, 0, 3, 15.24),
    Sketcher.Constraint("DistanceY", -1, 1, 0, 3, 55.88),
    Sketcher.Constraint("DistanceX", -1, 1, 1, 3, 13.97),
    Sketcher.Constraint("DistanceY", -1, 1, 1, 3, 7.62),
    Sketcher.Constraint("DistanceY", -1, 1, 2, 3, 40.64),
    Sketcher.Constraint("DistanceX", -1, 1, 5, 3, 96.52),
    Sketcher.Constraint("DistanceY", -1, 1, 6, 3, 46.35),
])
sketch13.setExpression("Constraints[9]", "Params.sketch13_diameter")
pad6 = doc.addObject("PartDesign::Pad", "Pad005")
body17.addObject(pad6)
pad6.Profile = sketch13
pad6.setExpression("Length", "Params.pad6_length")
body18 = doc.addObject("PartDesign::Body", "Body017")
body18.AllowCompound = True
doc.recompute()

body17.Placement = App.Placement(Vector(0, 0, 2.54), App.Rotation(Vector(0, 0, 1), 0))
boolean14 = doc.addObject("PartDesign::Boolean", "Boolean013")
body18.addObject(boolean14)
boolean14.Type = "Fuse"
boolean14.addObjects([body17])
doc.recompute()

boolean15 = doc.addObject("PartDesign::Boolean", "Boolean014")
body18.addObject(boolean15)
boolean15.Type = "Fuse"
boolean15.addObjects([body14])
doc.recompute()

boolean16 = doc.addObject("PartDesign::Boolean", "Boolean015")
body18.addObject(boolean16)
boolean16.Type = "Fuse"
boolean16.addObjects([body16])
body19 = doc.addObject("PartDesign::Body", "Body018")
body19.AllowCompound = True
doc.recompute()

body18.Placement = App.Placement(Vector(0.5, 0.5, 0), App.Rotation(Vector(0, 0, 1), 0))
boolean17 = doc.addObject("PartDesign::Boolean", "Boolean016")
body19.addObject(boolean17)
boolean17.Type = "Fuse"
boolean17.addObjects([body18])
doc.recompute()

boolean18 = doc.addObject("PartDesign::Boolean", "Boolean017")
body19.addObject(boolean18)
boolean18.Type = "Fuse"
boolean18.addObjects([body6])

doc.recompute()
